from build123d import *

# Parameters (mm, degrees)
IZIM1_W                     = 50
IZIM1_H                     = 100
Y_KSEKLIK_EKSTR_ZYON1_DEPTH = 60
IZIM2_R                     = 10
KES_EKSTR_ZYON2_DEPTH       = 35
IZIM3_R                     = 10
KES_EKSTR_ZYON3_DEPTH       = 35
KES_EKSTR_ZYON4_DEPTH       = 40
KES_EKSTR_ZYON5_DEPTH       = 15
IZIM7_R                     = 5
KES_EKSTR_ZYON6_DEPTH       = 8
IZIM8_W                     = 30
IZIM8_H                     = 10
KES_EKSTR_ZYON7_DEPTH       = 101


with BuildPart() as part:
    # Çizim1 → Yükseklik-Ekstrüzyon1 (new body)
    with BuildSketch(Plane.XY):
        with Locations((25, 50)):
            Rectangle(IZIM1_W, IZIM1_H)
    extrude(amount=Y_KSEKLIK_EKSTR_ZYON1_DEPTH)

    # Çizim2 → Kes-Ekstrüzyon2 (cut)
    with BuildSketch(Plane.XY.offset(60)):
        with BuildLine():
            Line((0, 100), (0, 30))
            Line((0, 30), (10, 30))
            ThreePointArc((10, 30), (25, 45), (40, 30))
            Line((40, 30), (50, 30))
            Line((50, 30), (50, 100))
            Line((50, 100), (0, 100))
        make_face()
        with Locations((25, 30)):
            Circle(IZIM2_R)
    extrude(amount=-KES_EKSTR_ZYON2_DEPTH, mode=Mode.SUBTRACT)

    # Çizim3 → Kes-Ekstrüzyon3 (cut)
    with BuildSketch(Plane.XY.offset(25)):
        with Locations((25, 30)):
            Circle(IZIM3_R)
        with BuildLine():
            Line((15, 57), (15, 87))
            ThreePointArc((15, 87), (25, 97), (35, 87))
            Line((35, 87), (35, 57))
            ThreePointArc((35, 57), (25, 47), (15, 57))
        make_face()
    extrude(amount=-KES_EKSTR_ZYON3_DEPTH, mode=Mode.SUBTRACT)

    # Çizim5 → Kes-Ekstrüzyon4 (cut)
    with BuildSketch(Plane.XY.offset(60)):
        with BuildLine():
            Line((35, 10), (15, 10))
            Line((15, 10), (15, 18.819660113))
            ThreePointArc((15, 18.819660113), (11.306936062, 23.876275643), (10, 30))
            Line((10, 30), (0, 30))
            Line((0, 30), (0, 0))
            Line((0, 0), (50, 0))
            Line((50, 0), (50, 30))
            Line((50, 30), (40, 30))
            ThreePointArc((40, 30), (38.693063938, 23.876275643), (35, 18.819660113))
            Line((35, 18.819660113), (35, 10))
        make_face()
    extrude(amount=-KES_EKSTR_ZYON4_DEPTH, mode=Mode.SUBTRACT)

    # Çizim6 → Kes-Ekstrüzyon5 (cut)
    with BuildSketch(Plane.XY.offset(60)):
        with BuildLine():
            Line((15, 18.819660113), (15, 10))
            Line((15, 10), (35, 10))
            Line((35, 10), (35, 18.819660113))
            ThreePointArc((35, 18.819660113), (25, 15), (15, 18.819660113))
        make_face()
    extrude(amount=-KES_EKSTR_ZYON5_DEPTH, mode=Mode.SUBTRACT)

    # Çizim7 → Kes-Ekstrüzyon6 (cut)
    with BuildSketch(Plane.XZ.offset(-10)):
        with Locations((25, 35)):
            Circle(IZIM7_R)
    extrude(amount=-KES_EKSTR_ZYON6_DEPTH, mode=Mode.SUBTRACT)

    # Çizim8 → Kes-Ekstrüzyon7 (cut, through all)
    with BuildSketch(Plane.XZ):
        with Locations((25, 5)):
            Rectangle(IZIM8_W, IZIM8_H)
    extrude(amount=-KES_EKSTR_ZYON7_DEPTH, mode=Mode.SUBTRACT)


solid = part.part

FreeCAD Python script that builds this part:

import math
import FreeCAD as App
import Part
import Sketcher
from FreeCAD import Vector


def add_polygon(sketch, points):
    """Adds a closed chain of lines whose ends are joined by coincident constraints."""
    first, n = sketch.GeometryCount, len(points)
    for a, b in zip(points, points[1:] + points[:1]):
        sketch.addGeometry(Part.LineSegment(App.Vector(*a, 0), App.Vector(*b, 0)), False)
    for i in range(n):
        sketch.addConstraint(Sketcher.Constraint("Coincident", first + i, 2, first + (i + 1) % n, 1))

doc = App.newDocument("Part")
body = doc.addObject("PartDesign::Body", "Body")

# Sketch on XY plane
sketch1 = body.newObject("Sketcher::SketchObject", "Sketch")
sketch1.AttachmentSupport = (doc.getObject("XY_Plane"), [""])
sketch1.MapMode = "FlatFace"
add_polygon(sketch1, [(0, 100), (0, 0), (50, 0), (50, 100)])  # lines 0-3
sketch1.addConstraint([
    Sketcher.Constraint("Vertical", 0),
    Sketcher.Constraint("Horizontal", 1),
    Sketcher.Constraint("Vertical", 2),
    Sketcher.Constraint("Horizontal", 3),
    Sketcher.Constraint("Coincident", 0, 2, -1, 1),
    Sketcher.Constraint("DistanceX", 1, 1, 1, 2, 50.0),
    Sketcher.Constraint("DistanceY", 0, 2, 0, 1, 100.0),
])
pad1 = body.newObject("PartDesign::Pad", "Pad")
pad1.Profile = sketch1
pad1.Length = 60

# Sketch on XY plane
sketch2 = body.newObject("Sketcher::SketchObject", "Sketch001")
sketch2.AttachmentSupport = (doc.getObject("XY_Plane"), [""])
sketch2.MapMode = "FlatFace"
sketch2.AttachmentOffset = App.Placement(Vector(0, 0, 60), App.Rotation())
sketch2.addGeometry([
    Part.LineSegment(Vector(0, 100, 0), Vector(0, 30, 0)),  # 0
    Part.LineSegment(Vector(0, 30, 0), Vector(10, 30, 0)),  # 1
    Part.ArcOfCircle(Part.Circle(Vector(25, 30, 0), Vector(0, 0, 1), 15), math.radians(0), math.radians(180)),  # 2
    Part.LineSegment(Vector(40, 30, 0), Vector(50, 30, 0)),  # 3
    Part.LineSegment(Vector(50, 30, 0), Vector(50, 100, 0)),  # 4
    Part.LineSegment(Vector(50, 100, 0), Vector(0, 100, 0)),  # 5
    Part.Circle(Vector(25, 30, 0), Vector(0, 0, 1), 10),  # 6
], False)
sketch2.addConstraint([
    Sketcher.Constraint("Coincident", 0, 2, 1, 1),
    Sketcher.Constraint("Coincident", 1, 2, 2, 2),
    Sketcher.Constraint("Coincident", 2, 1, 3, 1),
    Sketcher.Constraint("Coincident", 3, 2, 4, 1),
    Sketcher.Constraint("Coincident", 4, 2, 5, 1),
    Sketcher.Constraint("Coincident", 5, 2, 0, 1),
    Sketcher.Constraint("Vertical", 0),
    Sketcher.Constraint("Horizontal", 1),
    Sketcher.Constraint("Horizontal", 3),
    Sketcher.Constraint("Vertical", 4),
    Sketcher.Constraint("Horizontal", 5),
    Sketcher.Constraint("Coincident", 6, 3, 2, 3),
    Sketcher.Constraint("PointOnObject", 0, 2, -2),
    Sketcher.Constraint("Horizontal", 6, 3, 0, 2),
    Sketcher.Constraint("Horizontal", 1, 2, 2, 1),
    Sketcher.Constraint("Equal", 1, 3),
    Sketcher.Constraint("Diameter", 6, 20.0),
    Sketcher.Constraint("Radius", 2, 15.0),
    Sketcher.Constraint("DistanceX", 1, 1, 1, 2, 10.0),
    Sketcher.Constraint("DistanceY", 0, 2, 0, 1, 70.0),
    Sketcher.Constraint("DistanceY", -1, 1, 2, 3, 30.0),
])
pocket1 = body.newObject("PartDesign::Pocket", "Pocket")
pocket1.Profile = sketch2
pocket1.Length = 35

# Sketch on XY plane
sketch3 = body.newObject("Sketcher::SketchObject", "Sketch002")
sketch3.AttachmentSupport = (doc.getObject("XY_Plane"), [""])
sketch3.MapMode = "FlatFace"
sketch3.AttachmentOffset = App.Placement(Vector(0, 0, 25), App.Rotation())
sketch3.addGeometry([
    Part.Circle(Vector(25, 30, 0), Vector(0, 0, 1), 10),  # 0
    Part.LineSegment(Vector(15, 87, 0), Vector(15, 57, 0)),  # 1
    Part.ArcOfCircle(Part.Circle(Vector(25, 57, 0), Vector(0, 0, 1), 10), math.radians(180), math.radians(360)),  # 2
    Part.LineSegment(Vector(35, 57, 0), Vector(35, 87, 0)),  # 3
    Part.ArcOfCircle(Part.Circle(Vector(25, 87, 0), Vector(0, 0, 1), 10), math.radians(0), math.radians(180)),  # 4
], False)
sketch3.addConstraint([
    Sketcher.Constraint("Tangent", 1, 2, 2, 1),
    Sketcher.Constraint("Tangent", 2, 2, 3, 1),
    Sketcher.Constraint("Tangent", 3, 2, 4, 1),
    Sketcher.Constraint("Tangent", 4, 2, 1, 1),
    Sketcher.Constraint("Vertical", 1),
    Sketcher.Constraint("Vertical", 3),
    Sketcher.Constraint("Equal", 0, 2),
    Sketcher.Constraint("Vertical", 0, 3, 2, 3),
    Sketcher.Constraint("Diameter", 0, 20.0),
    Sketcher.Constraint("DistanceY", 1, 2, 1, 1, 30.0),
    Sketcher.Constraint("DistanceX", -1, 1, 0, 3, 25.0),
    Sketcher.Constraint("DistanceY", -1, 1, 0, 3, 30.0),
    Sketcher.Constraint("DistanceY", -1, 1, 2, 3, 57.0),
])
pocket2 = body.newObject("PartDesign::Pocket", "Pocket001")
pocket2.Profile = sketch3
pocket2.Length = 35

# Sketch on XY plane
sketch4 = body.newObject("Sketcher::SketchObject", "Sketch003")
sketch4.AttachmentSupport = (doc.getObject("XY_Plane"), [""])
sketch4.MapMode = "FlatFace"
sketch4.AttachmentOffset = App.Placement(Vector(0, 0, 60), App.Rotation())
sketch4.addGeometry([
    Part.LineSegment(Vector(35, 10, 0), Vector(15, 10, 0)),  # 0
    Part.LineSegment(Vector(15, 10, 0), Vector(15, 19, 0)),  # 1
    Part.ArcOfCircle(Part.Circle(Vector(25, 30, 0), Vector(0, 0, 1), 15), math.radians(180), math.radians(228)),  # 2
    Part.LineSegment(Vector(10, 30, 0), Vector(0, 30, 0)),  # 3
    Part.LineSegment(Vector(0, 30, 0), Vector(0, 0, 0)),  # 4
    Part.LineSegment(Vector(0, 0, 0), Vector(50, 0, 0)),  # 5
    Part.LineSegment(Vector(50, 0, 0), Vector(50, 30, 0)),  # 6
    Part.LineSegment(Vector(50, 30, 0), Vector(40, 30, 0)),  # 7
    Part.ArcOfCircle(Part.Circle(Vector(25, 30, 0), Vector(0, 0, 1), 15), math.radians(-48), math.radians(0)),  # 8
    Part.LineSegment(Vector(35, 19, 0), Vector(35, 10, 0)),  # 9
], False)
sketch4.addConstraint([
    Sketcher.Constraint("Coincident", 0, 2, 1, 1),
    Sketcher.Constraint("Coincident", 1, 2, 2, 2),
    Sketcher.Constraint("Coincident", 2, 1, 3, 1),
    Sketcher.Constraint("Coincident", 3, 2, 4, 1),
    Sketcher.Constraint("Coincident", 4, 2, 5, 1),
    Sketcher.Constraint("Coincident", 5, 2, 6, 1),
    Sketcher.Constraint("Coincident", 6, 2, 7, 1),
    Sketcher.Constraint("Coincident", 7, 2, 8, 2),
    Sketcher.Constraint("Coincident", 8, 1, 9, 1),
    Sketcher.Constraint("Coincident", 9, 2, 0, 1),
    Sketcher.Constraint("Horizontal", 0),
    Sketcher.Constraint("Vertical", 1),
    Sketcher.Constraint("Horizontal", 3),
    Sketcher.Constraint("Vertical", 4),
    Sketcher.Constraint("Horizontal", 5),
    Sketcher.Constraint("Vertical", 6),
    Sketcher.Constraint("Horizontal", 7),
    Sketcher.Constraint("Vertical", 9),
    Sketcher.Constraint("Coincident", 4, 2, -1, 1),
    Sketcher.Constraint("Coincident", 8, 3, 2, 3),
    Sketcher.Constraint("Equal", 2, 8),
    Sketcher.Constraint("Horizontal", 8, 3, 2, 1),
    Sketcher.Constraint("Horizontal", 3, 2, 6, 2),
    Sketcher.Constraint("Horizontal", 1, 2, 8, 1),
    Sketcher.Constraint("Equal", 3, 7),
    Sketcher.Constraint("Radius", 2, 15.0),
    Sketcher.Constraint("DistanceX", 0, 2, 0, 1, 20.0),
    Sketcher.Constraint("DistanceX", 3, 2, 3, 1, 10.0),
    Sketcher.Constraint("DistanceY", 4, 2, 4, 1, 30.0),
    Sketcher.Constraint("DistanceY", -1, 1, 0, 2, 10.0),
])
pocket3 = body.newObject("PartDesign::Pocket", "Pocket002")
pocket3.Profile = sketch4
pocket3.Length = 40

# Sketch on XY plane
sketch5 = body.newObject("Sketcher::SketchObject", "Sketch004")
sketch5.AttachmentSupport = (doc.getObject("XY_Plane"), [""])
sketch5.MapMode = "FlatFace"
sketch5.AttachmentOffset = App.Placement(Vector(0, 0, 60), App.Rotation())
sketch5.addGeometry([
    Part.LineSegment(Vector(15, 19, 0), Vector(15, 10, 0)),
    Part.LineSegment(Vector(15, 10, 0), Vector(35, 10, 0)),
    Part.LineSegment(Vector(35, 10, 0), Vector(35, 19, 0)),
    Part.ArcOfCircle(Part.Circle(Vector(25, 30, 0), Vector(0, 0, 1), 15), math.radians(-132), math.radians(-48)),
], False)
sketch5.addConstraint([
    Sketcher.Constraint("Coincident", 0, 2, 1, 1),
    Sketcher.Constraint("Coincident", 1, 2, 2, 1),
    Sketcher.Constraint("Coincident", 2, 2, 3, 2),
    Sketcher.Constraint("Coincident", 3, 1, 0, 1),
    Sketcher.Constraint("Vertical", 0),
    Sketcher.Constraint("Horizontal", 1),
    Sketcher.Constraint("Vertical", 2),
    Sketcher.Constraint("Horizontal", 2, 2, 3, 1),
    Sketcher.Constraint("Radius", 3, 15.0),
    Sketcher.Constraint("DistanceX", 1, 1, 1, 2, 20.0),
    Sketcher.Constraint("DistanceX", -1, 1, 3, 3, 25.0),
    Sketcher.Constraint("DistanceY", -1, 1, 3, 3, 30.0),
    Sketcher.Constraint("DistanceY", -1, 1, 0, 2, 10.0),
])
pocket4 = body.newObject("PartDesign::Pocket", "Pocket003")
pocket4.Profile = sketch5
pocket4.Length = 15

# Sketch on XZ plane
sketch6 = body.newObject("Sketcher::SketchObject", "Sketch005")
sketch6.AttachmentSupport = (doc.getObject("XZ_Plane"), [""])
sketch6.MapMode = "FlatFace"
sketch6.AttachmentOffset = App.Placement(Vector(0, 0, -10), App.Rotation())
sketch6.addGeometry(Part.Circle(Vector(25, 35, 0), Vector(0, 0, 1), 5), False)
sketch6.addConstraint([
    Sketcher.Constraint("Diameter", 0, 10.0),
    Sketcher.Constraint("DistanceX", -1, 1, 0, 3, 25.0),
    Sketcher.Constraint("DistanceY", -1, 1, 0, 3, 35.0),
])
pocket5 = body.newObject("PartDesign::Pocket", "Pocket004")
pocket5.Profile = sketch6
pocket5.Length = 8

# Sketch on XZ plane
sketch7 = body.newObject("Sketcher::SketchObject", "Sketch006")
sketch7.AttachmentSupport = (doc.getObject("XZ_Plane"), [""])
sketch7.MapMode = "FlatFace"
add_polygon(sketch7, [(10, 10), (10, 0), (40, 0), (40, 10)])  # lines 0-3
sketch7.addConstraint([
    Sketcher.Constraint("Vertical", 0),
    Sketcher.Constraint("Horizontal", 1),
    Sketcher.Constraint("Vertical", 2),
    Sketcher.Constraint("Horizontal", 3),
    Sketcher.Constraint("PointOnObject", 0, 2, -1),
    Sketcher.Constraint("DistanceX", 1, 1, 1, 2, 30.0),
    Sketcher.Constraint("DistanceY", 0, 2, 0, 1, 10.0),
    Sketcher.Constraint("DistanceX", -1, 1, 0, 2, 10.0),
])
pocket6 = body.newObject("PartDesign::Pocket", "Pocket005")
pocket6.Profile = sketch7
pocket6.Type = "ThroughAll"

doc.recompute()
